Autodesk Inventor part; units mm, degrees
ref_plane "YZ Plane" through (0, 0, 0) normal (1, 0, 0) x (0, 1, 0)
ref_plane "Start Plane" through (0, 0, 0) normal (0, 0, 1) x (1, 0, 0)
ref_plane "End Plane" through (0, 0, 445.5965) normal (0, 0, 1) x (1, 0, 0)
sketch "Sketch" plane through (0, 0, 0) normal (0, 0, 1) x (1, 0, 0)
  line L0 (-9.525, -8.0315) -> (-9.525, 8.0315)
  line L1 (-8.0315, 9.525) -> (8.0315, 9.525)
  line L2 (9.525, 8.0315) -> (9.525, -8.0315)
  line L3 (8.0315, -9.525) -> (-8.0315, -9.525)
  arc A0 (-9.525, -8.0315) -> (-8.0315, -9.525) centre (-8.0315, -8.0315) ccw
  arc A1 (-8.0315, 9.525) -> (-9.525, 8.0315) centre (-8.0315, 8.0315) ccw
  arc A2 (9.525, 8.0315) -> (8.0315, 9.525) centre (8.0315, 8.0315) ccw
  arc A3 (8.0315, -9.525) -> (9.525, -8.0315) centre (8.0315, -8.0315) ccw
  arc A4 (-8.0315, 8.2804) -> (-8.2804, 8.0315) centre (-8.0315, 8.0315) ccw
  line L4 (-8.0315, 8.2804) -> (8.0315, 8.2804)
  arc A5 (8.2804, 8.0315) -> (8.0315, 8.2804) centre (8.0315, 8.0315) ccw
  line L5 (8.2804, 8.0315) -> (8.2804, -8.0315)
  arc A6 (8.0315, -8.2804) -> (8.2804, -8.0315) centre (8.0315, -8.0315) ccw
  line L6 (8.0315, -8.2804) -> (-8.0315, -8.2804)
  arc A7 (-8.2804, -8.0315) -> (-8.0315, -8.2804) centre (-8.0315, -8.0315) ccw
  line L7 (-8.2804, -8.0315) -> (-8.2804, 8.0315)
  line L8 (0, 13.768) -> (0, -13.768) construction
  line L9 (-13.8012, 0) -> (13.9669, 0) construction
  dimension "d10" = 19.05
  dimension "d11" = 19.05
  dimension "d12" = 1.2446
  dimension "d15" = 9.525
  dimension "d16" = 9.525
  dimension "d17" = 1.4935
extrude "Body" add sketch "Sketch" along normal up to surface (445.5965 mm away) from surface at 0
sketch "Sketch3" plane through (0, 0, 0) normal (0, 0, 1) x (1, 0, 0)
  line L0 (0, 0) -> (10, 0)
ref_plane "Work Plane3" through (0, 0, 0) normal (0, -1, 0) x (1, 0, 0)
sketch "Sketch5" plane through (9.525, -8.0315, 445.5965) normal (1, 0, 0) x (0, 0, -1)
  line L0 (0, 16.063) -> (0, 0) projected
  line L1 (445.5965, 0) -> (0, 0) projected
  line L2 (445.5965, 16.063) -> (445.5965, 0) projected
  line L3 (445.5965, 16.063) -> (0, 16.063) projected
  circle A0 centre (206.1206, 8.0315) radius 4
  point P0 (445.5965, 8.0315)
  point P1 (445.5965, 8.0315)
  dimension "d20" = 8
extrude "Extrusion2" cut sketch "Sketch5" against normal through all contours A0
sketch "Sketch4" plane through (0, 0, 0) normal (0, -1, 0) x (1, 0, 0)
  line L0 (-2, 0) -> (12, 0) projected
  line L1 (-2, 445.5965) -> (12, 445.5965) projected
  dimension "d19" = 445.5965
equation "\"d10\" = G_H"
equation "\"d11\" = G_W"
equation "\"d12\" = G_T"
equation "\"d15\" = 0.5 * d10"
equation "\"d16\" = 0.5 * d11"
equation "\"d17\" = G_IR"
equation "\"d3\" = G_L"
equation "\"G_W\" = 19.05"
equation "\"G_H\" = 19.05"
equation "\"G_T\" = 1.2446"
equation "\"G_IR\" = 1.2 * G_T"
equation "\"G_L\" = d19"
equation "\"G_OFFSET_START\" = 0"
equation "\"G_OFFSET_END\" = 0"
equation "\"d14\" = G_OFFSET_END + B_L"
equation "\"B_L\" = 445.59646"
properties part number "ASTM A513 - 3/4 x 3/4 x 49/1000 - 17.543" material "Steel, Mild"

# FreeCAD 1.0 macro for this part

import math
import FreeCAD as App
import Part
import Sketcher
from FreeCAD import Vector
Q = App.Units.Quantity

doc = App.newDocument("Part")
body = doc.addObject("PartDesign::Body", "Body")

sketch1 = body.newObject("Sketcher::SketchObject", "Sketch")
sketch1.AttachmentSupport = (doc.getObject("XY_Plane"), [""])
sketch1.MapMode = "FlatFace"
sketch1.addGeometry(Part.LineSegment(Vector(-9.53, 8.03, 0), Vector(-9.53, -8.03, 0)), False)
sketch1.addGeometry(Part.ArcOfCircle(Part.Circle(Vector(-8.03, -8.03, 0), Vector(0, 0, 1), 1.49), math.radians(180), math.radians(270)), False)
sketch1.addGeometry(Part.LineSegment(Vector(-8.03, -9.53, 0), Vector(8.03, -9.53, 0)), False)
sketch1.addGeometry(Part.ArcOfCircle(Part.Circle(Vector(8.03, -8.03, 0), Vector(0, 0, 1), 1.49), math.radians(-90), math.radians(0)), False)
sketch1.addGeometry(Part.LineSegment(Vector(9.53, -8.03, 0), Vector(9.53, 8.03, 0)), False)
sketch1.addGeometry(Part.ArcOfCircle(Part.Circle(Vector(8.03, 8.03, 0), Vector(0, 0, 1), 1.49), math.radians(0), math.radians(90)), False)
sketch1.addGeometry(Part.LineSegment(Vector(8.03, 9.53, 0), Vector(-8.03, 9.53, 0)), False)
sketch1.addGeometry(Part.ArcOfCircle(Part.Circle(Vector(-8.03, 8.03, 0), Vector(0, 0, 1), 1.49), math.radians(90), math.radians(180)), False)
sketch1.addGeometry(Part.ArcOfCircle(Part.Circle(Vector(-8.03, 8.03, 0), Vector(0, 0, 1), 0.25), math.radians(90), math.radians(180)), False)
sketch1.addGeometry(Part.LineSegment(Vector(-8.03, 8.28, 0), Vector(8.03, 8.28, 0)), False)
sketch1.addGeometry(Part.ArcOfCircle(Part.Circle(Vector(8.03, 8.03, 0), Vector(0, 0, 1), 0.25), math.radians(0), math.radians(90)), False)
sketch1.addGeometry(Part.LineSegment(Vector(8.28, 8.03, 0), Vector(8.28, -8.03, 0)), False)
sketch1.addGeometry(Part.ArcOfCircle(Part.Circle(Vector(8.03, -8.03, 0), Vector(0, 0, 1), 0.25), math.radians(-90), math.radians(0)), False)
sketch1.addGeometry(Part.LineSegment(Vector(8.03, -8.28, 0), Vector(-8.03, -8.28, 0)), False)
sketch1.addGeometry(Part.ArcOfCircle(Part.Circle(Vector(-8.03, -8.03, 0), Vector(0, 0, 1), 0.25), math.radians(180), math.radians(270)), False)
sketch1.addGeometry(Part.LineSegment(Vector(-8.28, -8.03, 0), Vector(-8.28, 8.03, 0)), False)
sketch1.addConstraint(Sketcher.Constraint("Tangent", 0, 2, 1, 1))
sketch1.addConstraint(Sketcher.Constraint("Tangent", 1, 2, 2, 1))
sketch1.addConstraint(Sketcher.Constraint("Tangent", 2, 2, 3, 1))
sketch1.addConstraint(Sketcher.Constraint("Tangent", 3, 2, 4, 1))
sketch1.addConstraint(Sketcher.Constraint("Tangent", 4, 2, 5, 1))
sketch1.addConstraint(Sketcher.Constraint("Tangent", 5, 2, 6, 1))
sketch1.addConstraint(Sketcher.Constraint("Tangent", 6, 2, 7, 1))
sketch1.addConstraint(Sketcher.Constraint("Tangent", 7, 2, 0, 1))
sketch1.addConstraint(Sketcher.Constraint("Tangent", 8, 1, 9, 1))
sketch1.addConstraint(Sketcher.Constraint("Tangent", 9, 2, 10, 2))
sketch1.addConstraint(Sketcher.Constraint("Tangent", 10, 1, 11, 1))
sketch1.addConstraint(Sketcher.Constraint("Tangent", 11, 2, 12, 2))
sketch1.addConstraint(Sketcher.Constraint("Tangent", 12, 1, 13, 1))
sketch1.addConstraint(Sketcher.Constraint("Tangent", 13, 2, 14, 2))
sketch1.addConstraint(Sketcher.Constraint("Tangent", 14, 1, 15, 1))
sketch1.addConstraint(Sketcher.Constraint("Tangent", 15, 2, 8, 2))
sketch1.addConstraint(Sketcher.Constraint("Vertical", 0))
sketch1.addConstraint(Sketcher.Constraint("Horizontal", 2))
sketch1.addConstraint(Sketcher.Constraint("Vertical", 4))
sketch1.addConstraint(Sketcher.Constraint("Horizontal", 6))
sketch1.addConstraint(Sketcher.Constraint("Horizontal", 9))
sketch1.addConstraint(Sketcher.Constraint("Vertical", 11))
sketch1.addConstraint(Sketcher.Constraint("Horizontal", 13))
sketch1.addConstraint(Sketcher.Constraint("Vertical", 15))
sketch1.addConstraint(Sketcher.Constraint("Coincident", 8, 3, 7, 3))
sketch1.addConstraint(Sketcher.Constraint("Coincident", 10, 3, 5, 3))
sketch1.addConstraint(Sketcher.Constraint("Coincident", 12, 3, 3, 3))
sketch1.addConstraint(Sketcher.Constraint("Equal", 1, 3))
sketch1.addConstraint(Sketcher.Constraint("Equal", 3, 5))
sketch1.addConstraint(Sketcher.Constraint("Equal", 5, 7))
sketch1.addConstraint(Sketcher.Constraint("Equal", 12, 14))
sketch1.addConstraint(Sketcher.Constraint("Symmetric", 1, 3, 5, 3, -1, 1))
sketch1.addConstraint(Sketcher.Constraint("Equal", 13, 0))
sketch1.addConstraint(Sketcher.Constraint("Radius", 1, Q("1.4935 mm")))
sketch1.addConstraint(Sketcher.Constraint("DistanceX", 0, 2, -1, 1, Q("9.525 mm")))
sketch1.addConstraint(Sketcher.Constraint("Radius", 8, Q("0.249 mm")))
pad1 = body.newObject("PartDesign::Pad", "Pad")
pad1.Profile = sketch1
pad1.Length = 445.5965

sketch2 = body.newObject("Sketcher::SketchObject", "Sketch001")
sketch2.AttachmentSupport = (doc.getObject("YZ_Plane"), [""])
sketch2.MapMode = "FlatFace"
sketch2.AttachmentOffset = App.Placement(Vector(0, 0, 9.525), App.Rotation())
sketch2.addGeometry(Part.Circle(Vector(0, 239.5, 0), Vector(0, 0, 1), 4), False)
sketch2.addConstraint(Sketcher.Constraint("PointOnObject", 0, 3, -2))
sketch2.addConstraint(Sketcher.Constraint("Diameter", 0, Q("8 mm")))
sketch2.addConstraint(Sketcher.Constraint("DistanceY", -1, 1, 0, 3, Q("239.476 mm")))
pocket1 = body.newObject("PartDesign::Pocket", "Pocket")
pocket1.Profile = sketch2
pocket1.Type = "ThroughAll"

doc.recompute()
